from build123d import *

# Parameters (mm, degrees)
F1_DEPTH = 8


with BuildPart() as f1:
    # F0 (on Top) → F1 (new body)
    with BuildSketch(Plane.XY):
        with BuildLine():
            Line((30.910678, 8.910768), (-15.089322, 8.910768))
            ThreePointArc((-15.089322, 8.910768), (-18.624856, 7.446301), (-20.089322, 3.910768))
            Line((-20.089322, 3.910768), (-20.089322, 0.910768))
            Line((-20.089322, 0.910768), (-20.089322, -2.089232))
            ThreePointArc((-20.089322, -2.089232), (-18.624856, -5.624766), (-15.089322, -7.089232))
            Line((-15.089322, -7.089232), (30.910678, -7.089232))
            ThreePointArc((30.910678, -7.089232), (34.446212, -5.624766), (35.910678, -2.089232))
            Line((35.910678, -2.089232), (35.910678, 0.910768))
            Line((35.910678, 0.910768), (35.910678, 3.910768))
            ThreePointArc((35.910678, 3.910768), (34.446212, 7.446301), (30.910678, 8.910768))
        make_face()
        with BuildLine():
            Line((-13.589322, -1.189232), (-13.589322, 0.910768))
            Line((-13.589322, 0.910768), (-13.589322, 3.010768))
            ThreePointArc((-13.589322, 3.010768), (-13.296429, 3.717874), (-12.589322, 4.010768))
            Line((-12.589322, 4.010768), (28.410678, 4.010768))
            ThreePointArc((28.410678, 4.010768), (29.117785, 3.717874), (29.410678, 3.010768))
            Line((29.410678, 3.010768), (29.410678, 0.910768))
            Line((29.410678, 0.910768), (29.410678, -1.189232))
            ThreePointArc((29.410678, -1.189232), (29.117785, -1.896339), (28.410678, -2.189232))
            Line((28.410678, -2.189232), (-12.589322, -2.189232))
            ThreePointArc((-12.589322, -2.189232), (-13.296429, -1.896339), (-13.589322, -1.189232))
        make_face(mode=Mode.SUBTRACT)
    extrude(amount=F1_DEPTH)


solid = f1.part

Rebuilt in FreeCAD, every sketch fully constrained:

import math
import FreeCAD as App
import Part
import Sketcher

V = App.Vector

doc = App.newDocument("Part")
body = doc.addObject("PartDesign::Body", "Body")

sketch1 = body.newObject("Sketcher::SketchObject", "Sketch")
sketch1.AttachmentSupport = (doc.getObject("XY_Plane"), [""])
sketch1.MapMode = "FlatFace"
sketch1.addGeometry([
    Part.LineSegment(V(30.9, 8.9, 0), V(-15.1, 8.9, 0)),
    Part.ArcOfCircle(Part.Circle(V(-15.1, 3.9, 0), V(0, 0, 1), 5), math.radians(90), math.radians(180)),
    Part.LineSegment(V(-20.1, 3.9, 0), V(-20.1, -2.1, 0)),
    Part.ArcOfCircle(Part.Circle(V(-15.1, -2.1, 0), V(0, 0, 1), 5), math.radians(180), math.radians(270)),
    Part.LineSegment(V(-15.1, -7.1, 0), V(30.9, -7.1, 0)),
    Part.ArcOfCircle(Part.Circle(V(30.9, -2.1, 0), V(0, 0, 1), 5), math.radians(-90), math.radians(0)),
    Part.LineSegment(V(35.9, -2.1, 0), V(35.9, 3.9, 0)),
    Part.ArcOfCircle(Part.Circle(V(30.9, 3.9, 0), V(0, 0, 1), 5), math.radians(0), math.radians(90)),
    Part.ArcOfCircle(Part.Circle(V(-12.6, -1.2, 0), V(0, 0, 1), 1), math.radians(180), math.radians(270)),
    Part.LineSegment(V(-13.6, -1.2, 0), V(-13.6, 3, 0)),
    Part.ArcOfCircle(Part.Circle(V(-12.6, 3, 0), V(0, 0, 1), 1), math.radians(90), math.radians(180)),
    Part.LineSegment(V(-12.6, 4, 0), V(28.4, 4, 0)),
    Part.ArcOfCircle(Part.Circle(V(28.4, 3, 0), V(0, 0, 1), 1), math.radians(0), math.radians(90)),
    Part.LineSegment(V(29.4, 3, 0), V(29.4, -1.2, 0)),
    Part.ArcOfCircle(Part.Circle(V(28.4, -1.2, 0), V(0, 0, 1), 1), math.radians(-90), math.radians(0)),
    Part.LineSegment(V(28.4, -2.2, 0), V(-12.6, -2.2, 0)),
], False)
sketch1.addConstraint([
    Sketcher.Constraint("Tangent", 0, 2, 1, 1),
    Sketcher.Constraint("Tangent", 1, 2, 2, 1),
    Sketcher.Constraint("Tangent", 2, 2, 3, 1),
    Sketcher.Constraint("Tangent", 3, 2, 4, 1),
    Sketcher.Constraint("Tangent", 4, 2, 5, 1),
    Sketcher.Constraint("Tangent", 5, 2, 6, 1),
    Sketcher.Constraint("Tangent", 6, 2, 7, 1),
    Sketcher.Constraint("Tangent", 7, 2, 0, 1),
    Sketcher.Constraint("Tangent", 8, 1, 9, 1),
    Sketcher.Constraint("Tangent", 9, 2, 10, 2),
    Sketcher.Constraint("Tangent", 10, 1, 11, 1),
    Sketcher.Constraint("Tangent", 11, 2, 12, 2),
    Sketcher.Constraint("Tangent", 12, 1, 13, 1),
    Sketcher.Constraint("Tangent", 13, 2, 14, 2),
    Sketcher.Constraint("Tangent", 14, 1, 15, 1),
    Sketcher.Constraint("Tangent", 15, 2, 8, 2),
    Sketcher.Constraint("Horizontal", 0),
    Sketcher.Constraint("Vertical", 2),
    Sketcher.Constraint("Horizontal", 4),
    Sketcher.Constraint("Vertical", 6),
    Sketcher.Constraint("Vertical", 9),
    Sketcher.Constraint("Horizontal", 11),
    Sketcher.Constraint("Vertical", 13),
    Sketcher.Constraint("Horizontal", 15),
    Sketcher.Constraint("Equal", 1, 3),
    Sketcher.Constraint("Equal", 3, 5),
    Sketcher.Constraint("Equal", 5, 7),
    Sketcher.Constraint("Equal", 8, 10),
    Sketcher.Constraint("Equal", 10, 12),
    Sketcher.Constraint("Equal", 12, 14),
    Sketcher.Constraint("Radius", 1, 5.000001),
    Sketcher.Constraint("Radius", 8, 0.999999),
    Sketcher.Constraint("DistanceX", 0, 2, 0, 1, 46.0),
    Sketcher.Constraint("DistanceX", 11, 1, 11, 2, 41.0),
    Sketcher.Constraint("DistanceY", 2, 2, 2, 1, 6.0),
    Sketcher.Constraint("DistanceY", 9, 1, 9, 2, 4.2),
    Sketcher.Constraint("DistanceX", 3, 3, 8, 3, 2.5),
    Sketcher.Constraint("DistanceY", 3, 3, 8, 3, 0.9),
    Sketcher.Constraint("DistanceX", 1, 3, -1, 1, 15.089321),
    Sketcher.Constraint("DistanceY", -1, 1, 1, 2, 3.910768),
])
pad1 = body.newObject("PartDesign::Pad", "Pad")
pad1.Profile = sketch1
pad1.Length = 8

doc.recompute()
